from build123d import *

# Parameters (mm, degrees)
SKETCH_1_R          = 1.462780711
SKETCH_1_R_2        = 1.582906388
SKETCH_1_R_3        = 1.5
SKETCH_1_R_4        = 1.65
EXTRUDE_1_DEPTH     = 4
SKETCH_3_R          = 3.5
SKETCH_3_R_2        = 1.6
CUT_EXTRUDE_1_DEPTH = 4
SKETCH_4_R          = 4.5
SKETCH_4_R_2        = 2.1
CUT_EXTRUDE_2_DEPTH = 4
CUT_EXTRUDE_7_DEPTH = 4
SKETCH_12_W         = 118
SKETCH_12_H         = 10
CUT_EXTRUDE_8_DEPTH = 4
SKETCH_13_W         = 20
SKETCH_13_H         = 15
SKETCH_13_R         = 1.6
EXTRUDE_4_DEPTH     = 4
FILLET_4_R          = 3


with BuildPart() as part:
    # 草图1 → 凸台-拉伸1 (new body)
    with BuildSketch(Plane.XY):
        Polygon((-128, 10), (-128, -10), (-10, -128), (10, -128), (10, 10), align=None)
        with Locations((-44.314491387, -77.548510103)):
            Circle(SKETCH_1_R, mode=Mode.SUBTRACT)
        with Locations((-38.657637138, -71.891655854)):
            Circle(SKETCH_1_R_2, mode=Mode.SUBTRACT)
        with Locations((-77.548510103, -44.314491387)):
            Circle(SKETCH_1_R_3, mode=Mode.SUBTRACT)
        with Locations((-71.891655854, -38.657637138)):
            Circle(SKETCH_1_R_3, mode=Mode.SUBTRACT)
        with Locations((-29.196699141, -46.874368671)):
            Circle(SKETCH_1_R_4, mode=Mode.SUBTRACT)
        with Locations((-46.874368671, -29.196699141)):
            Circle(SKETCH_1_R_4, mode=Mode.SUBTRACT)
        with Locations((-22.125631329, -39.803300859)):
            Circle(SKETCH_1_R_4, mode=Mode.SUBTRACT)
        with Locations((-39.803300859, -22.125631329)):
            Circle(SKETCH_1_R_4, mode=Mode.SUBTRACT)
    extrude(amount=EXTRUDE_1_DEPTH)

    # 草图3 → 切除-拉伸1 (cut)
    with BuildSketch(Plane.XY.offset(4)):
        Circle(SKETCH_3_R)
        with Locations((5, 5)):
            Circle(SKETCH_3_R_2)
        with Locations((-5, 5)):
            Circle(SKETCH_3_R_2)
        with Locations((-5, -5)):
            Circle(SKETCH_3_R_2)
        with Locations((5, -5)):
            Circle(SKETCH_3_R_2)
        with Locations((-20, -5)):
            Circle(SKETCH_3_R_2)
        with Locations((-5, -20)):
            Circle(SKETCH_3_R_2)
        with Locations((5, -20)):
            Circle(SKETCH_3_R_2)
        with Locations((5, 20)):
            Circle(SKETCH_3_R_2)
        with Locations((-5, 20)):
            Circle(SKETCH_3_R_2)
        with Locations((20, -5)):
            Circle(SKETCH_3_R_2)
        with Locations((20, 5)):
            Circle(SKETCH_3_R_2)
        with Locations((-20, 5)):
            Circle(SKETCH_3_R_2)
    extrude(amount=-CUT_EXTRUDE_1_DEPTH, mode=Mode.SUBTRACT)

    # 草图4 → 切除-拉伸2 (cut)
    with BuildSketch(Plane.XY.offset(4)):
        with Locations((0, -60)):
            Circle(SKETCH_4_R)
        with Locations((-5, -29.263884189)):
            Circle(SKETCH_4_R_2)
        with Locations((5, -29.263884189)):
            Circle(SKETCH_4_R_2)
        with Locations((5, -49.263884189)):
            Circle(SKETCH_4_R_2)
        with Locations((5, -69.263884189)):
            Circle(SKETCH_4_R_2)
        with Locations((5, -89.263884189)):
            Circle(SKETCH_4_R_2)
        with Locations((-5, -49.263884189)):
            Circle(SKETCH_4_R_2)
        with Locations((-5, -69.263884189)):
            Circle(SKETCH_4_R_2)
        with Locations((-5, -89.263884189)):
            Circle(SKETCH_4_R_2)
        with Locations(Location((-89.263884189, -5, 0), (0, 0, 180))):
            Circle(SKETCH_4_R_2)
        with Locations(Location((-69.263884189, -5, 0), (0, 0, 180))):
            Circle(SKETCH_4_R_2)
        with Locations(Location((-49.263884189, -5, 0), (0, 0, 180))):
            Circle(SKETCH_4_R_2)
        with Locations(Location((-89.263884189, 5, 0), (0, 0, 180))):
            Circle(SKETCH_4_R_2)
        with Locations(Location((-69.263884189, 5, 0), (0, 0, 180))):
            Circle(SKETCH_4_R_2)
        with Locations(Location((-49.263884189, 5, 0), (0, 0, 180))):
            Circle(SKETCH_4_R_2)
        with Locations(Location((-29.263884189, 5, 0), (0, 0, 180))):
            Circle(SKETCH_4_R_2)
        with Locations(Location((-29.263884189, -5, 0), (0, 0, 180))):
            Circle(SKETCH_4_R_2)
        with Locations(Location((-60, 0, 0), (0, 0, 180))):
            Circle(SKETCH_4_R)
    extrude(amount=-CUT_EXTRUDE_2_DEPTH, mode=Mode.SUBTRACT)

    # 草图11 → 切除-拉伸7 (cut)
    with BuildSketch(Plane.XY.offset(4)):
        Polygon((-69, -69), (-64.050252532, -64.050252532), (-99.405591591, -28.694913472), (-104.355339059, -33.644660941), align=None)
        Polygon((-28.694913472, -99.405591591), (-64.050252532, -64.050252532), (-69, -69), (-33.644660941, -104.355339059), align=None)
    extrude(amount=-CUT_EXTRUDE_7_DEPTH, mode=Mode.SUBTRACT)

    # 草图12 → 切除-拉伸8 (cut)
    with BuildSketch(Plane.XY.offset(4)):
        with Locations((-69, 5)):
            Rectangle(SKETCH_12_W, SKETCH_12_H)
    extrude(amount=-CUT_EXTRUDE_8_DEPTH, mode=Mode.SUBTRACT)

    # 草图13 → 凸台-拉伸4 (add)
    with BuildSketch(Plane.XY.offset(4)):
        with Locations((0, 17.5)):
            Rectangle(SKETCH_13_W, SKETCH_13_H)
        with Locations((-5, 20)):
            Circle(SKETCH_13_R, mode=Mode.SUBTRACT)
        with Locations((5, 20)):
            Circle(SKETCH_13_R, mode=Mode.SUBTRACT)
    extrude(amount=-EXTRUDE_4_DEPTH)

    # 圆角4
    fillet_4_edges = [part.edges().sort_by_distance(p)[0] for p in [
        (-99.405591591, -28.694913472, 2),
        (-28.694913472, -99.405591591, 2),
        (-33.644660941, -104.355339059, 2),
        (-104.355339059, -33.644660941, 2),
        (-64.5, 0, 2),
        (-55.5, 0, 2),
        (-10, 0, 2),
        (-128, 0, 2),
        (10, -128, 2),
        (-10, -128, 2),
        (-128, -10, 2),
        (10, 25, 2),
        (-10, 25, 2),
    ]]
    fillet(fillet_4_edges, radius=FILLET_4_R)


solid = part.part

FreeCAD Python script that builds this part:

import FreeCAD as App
import Part
import Sketcher

V = App.Vector
Q = App.Units.Quantity


def edges_at(feature, points):
    """Names of the edges that pass closest to the given points."""
    edges = feature.Shape.Edges
    near = lambda p: min(range(len(edges)), key=lambda i: edges[i].distToShape(Part.Vertex(*p))[0])
    return sorted({f"Edge{near(p) + 1}" for p in points})

doc = App.newDocument("Part")
body = doc.addObject("PartDesign::Body", "Body")

sketch1 = body.newObject("Sketcher::SketchObject", "Sketch")
sketch1.AttachmentSupport = (doc.getObject("XY_Plane"), [""])
sketch1.MapMode = "FlatFace"
sketch1.addGeometry(Part.LineSegment(V(-128, 10, 0), V(-128, -10, 0)), False)
sketch1.addGeometry(Part.LineSegment(V(-128, -10, 0), V(-10, -128, 0)), False)
sketch1.addGeometry(Part.LineSegment(V(-10, -128, 0), V(10, -128, 0)), False)
sketch1.addGeometry(Part.LineSegment(V(10, -128, 0), V(10, 10, 0)), False)
sketch1.addGeometry(Part.LineSegment(V(10, 10, 0), V(-128, 10, 0)), False)
sketch1.addGeometry(Part.Circle(V(-44.3, -77.5, 0), V(0, 0, 1), 1.5), False)
sketch1.addGeometry(Part.Circle(V(-38.7, -71.9, 0), V(0, 0, 1), 1.6), False)
sketch1.addGeometry(Part.Circle(V(-77.5, -44.3, 0), V(0, 0, 1), 1.5), False)
sketch1.addGeometry(Part.Circle(V(-71.9, -38.7, 0), V(0, 0, 1), 1.5), False)
sketch1.addGeometry(Part.Circle(V(-29.2, -46.9, 0), V(0, 0, 1), 1.6), False)
sketch1.addGeometry(Part.Circle(V(-22.1, -39.8, 0), V(0, 0, 1), 1.6), False)
sketch1.addGeometry(Part.Circle(V(-46.9, -29.2, 0), V(0, 0, 1), 1.6), False)
sketch1.addGeometry(Part.Circle(V(-39.8, -22.1, 0), V(0, 0, 1), 1.6), False)
sketch1.addConstraint(Sketcher.Constraint("Coincident", 0, 2, 1, 1))
sketch1.addConstraint(Sketcher.Constraint("Coincident", 1, 2, 2, 1))
sketch1.addConstraint(Sketcher.Constraint("Coincident", 2, 2, 3, 1))
sketch1.addConstraint(Sketcher.Constraint("Coincident", 3, 2, 4, 1))
sketch1.addConstraint(Sketcher.Constraint("Coincident", 4, 2, 0, 1))
sketch1.addConstraint(Sketcher.Constraint("Vertical", 0))
sketch1.addConstraint(Sketcher.Constraint("Horizontal", 2))
sketch1.addConstraint(Sketcher.Constraint("Vertical", 3))
sketch1.addConstraint(Sketcher.Constraint("Horizontal", 4))
sketch1.addConstraint(Sketcher.Constraint("Equal", 7, 8))
sketch1.addConstraint(Sketcher.Constraint("Equal", 9, 10))
sketch1.addConstraint(Sketcher.Constraint("Equal", 10, 11))
sketch1.addConstraint(Sketcher.Constraint("Equal", 11, 12))
sketch1.addConstraint(Sketcher.Constraint("Equal", 2, 0))
sketch1.addConstraint(Sketcher.Constraint("Equal", 4, 3))
sketch1.addConstraint(Sketcher.Constraint("Diameter", 7, 3.0))
sketch1.addConstraint(Sketcher.Constraint("Diameter", 9, 3.3))
sketch1.addConstraint(Sketcher.Constraint("DistanceX", 2, 1, 2, 2, 20.0))
sketch1.addConstraint(Sketcher.Constraint("DistanceX", 4, 2, 4, 1, 138.0))
sketch1.addConstraint(Sketcher.Constraint("DistanceX", 0, 2, -1, 1, 128.0))
sketch1.addConstraint(Sketcher.Constraint("DistanceY", 0, 2, -1, 1, 10.0))
sketch1.addConstraint(Sketcher.Constraint("Diameter", 5, 2.925561))
sketch1.addConstraint(Sketcher.Constraint("Diameter", 6, 3.165813))
sketch1.addConstraint(Sketcher.Constraint("DistanceX", 9, 3, -1, 1, 29.196699))
sketch1.addConstraint(Sketcher.Constraint("DistanceY", 10, 3, -1, 1, 39.803301))
sketch1.addConstraint(Sketcher.Constraint("DistanceY", 11, 3, -1, 1, 29.196699))
sketch1.addConstraint(Sketcher.Constraint("DistanceX", 12, 3, -1, 1, 39.803301))
sketch1.addConstraint(Sketcher.Constraint("DistanceX", 5, 3, -1, 1, 44.314491))
sketch1.addConstraint(Sketcher.Constraint("DistanceY", 5, 3, -1, 1, 77.54851))
sketch1.addConstraint(Sketcher.Constraint("DistanceX", 7, 3, -1, 1, 77.54851))
sketch1.addConstraint(Sketcher.Constraint("DistanceY", 7, 3, -1, 1, 44.314491))
sketch1.addConstraint(Sketcher.Constraint("DistanceY", 9, 3, -1, 1, 46.874369))
sketch1.addConstraint(Sketcher.Constraint("DistanceX", 10, 3, -1, 1, 22.125631))
sketch1.addConstraint(Sketcher.Constraint("DistanceX", 11, 3, -1, 1, 46.874369))
sketch1.addConstraint(Sketcher.Constraint("DistanceY", 12, 3, -1, 1, 22.125631))
sketch1.addConstraint(Sketcher.Constraint("DistanceX", 8, 3, 6, 3, 33.234019))
sketch1.addConstraint(Sketcher.Constraint("DistanceY", 6, 3, 8, 3, 33.234019))
sketch1.addConstraint(Sketcher.Constraint("DistanceY", 9, 3, 8, 3, 8.216732))
sketch1.addConstraint(Sketcher.Constraint("DistanceX", 11, 3, 6, 3, 8.216732))
pad1 = body.newObject("PartDesign::Pad", "Pad")
pad1.Profile = sketch1
pad1.Length = 4

sketch2 = body.newObject("Sketcher::SketchObject", "Sketch001")
sketch2.AttachmentSupport = (doc.getObject("XY_Plane"), [""])
sketch2.MapMode = "FlatFace"
sketch2.AttachmentOffset = App.Placement(V(0, 0, 4), App.Rotation())
sketch2.addGeometry(Part.Circle(V(0, 0, 0), V(0, 0, 1), 3.5), False)
sketch2.addGeometry(Part.Circle(V(5, 5, 0), V(0, 0, 1), 1.6), False)
sketch2.addGeometry(Part.Circle(V(-5, 5, 0), V(0, 0, 1), 1.6), False)
sketch2.addGeometry(Part.Circle(V(-5, -5, 0), V(0, 0, 1), 1.6), False)
sketch2.addGeometry(Part.Circle(V(5, -5, 0), V(0, 0, 1), 1.6), False)
sketch2.addGeometry(Part.Circle(V(-20, -5, 0), V(0, 0, 1), 1.6), False)
sketch2.addGeometry(Part.Circle(V(-5, -20, 0), V(0, 0, 1), 1.6), False)
sketch2.addGeometry(Part.Circle(V(5, -20, 0), V(0, 0, 1), 1.6), False)
sketch2.addGeometry(Part.Circle(V(5, 20, 0), V(0, 0, 1), 1.6), False)
sketch2.addGeometry(Part.Circle(V(-5, 20, 0), V(0, 0, 1), 1.6), False)
sketch2.addGeometry(Part.Circle(V(20, -5, 0), V(0, 0, 1), 1.6), False)
sketch2.addGeometry(Part.Circle(V(20, 5, 0), V(0, 0, 1), 1.6), False)
sketch2.addGeometry(Part.Circle(V(-20, 5, 0), V(0, 0, 1), 1.6), False)
sketch2.addConstraint(Sketcher.Constraint("Coincident", 0, 3, -1, 1))
sketch2.addConstraint(Sketcher.Constraint("Equal", 1, 2))
sketch2.addConstraint(Sketcher.Constraint("Equal", 2, 3))
sketch2.addConstraint(Sketcher.Constraint("Equal", 3, 4))
sketch2.addConstraint(Sketcher.Constraint("Equal", 4, 5))
sketch2.addConstraint(Sketcher.Constraint("Equal", 5, 6))
sketch2.addConstraint(Sketcher.Constraint("Equal", 6, 7))
sketch2.addConstraint(Sketcher.Constraint("Equal", 7, 8))
sketch2.addConstraint(Sketcher.Constraint("Equal", 8, 9))
sketch2.addConstraint(Sketcher.Constraint("Equal", 9, 10))
sketch2.addConstraint(Sketcher.Constraint("Equal", 10, 11))
sketch2.addConstraint(Sketcher.Constraint("Equal", 11, 12))
sketch2.addConstraint(Sketcher.Constraint("Symmetric", 1, 3, 3, 3, -1, 1))
sketch2.addConstraint(Sketcher.Constraint("Symmetric", 2, 3, 4, 3, -1, 1))
sketch2.addConstraint(Sketcher.Constraint("Symmetric", 6, 3, 8, 3, -1, 1))
sketch2.addConstraint(Sketcher.Constraint("Symmetric", 7, 3, 9, 3, -1, 1))
sketch2.addConstraint(Sketcher.Constraint("Symmetric", 5, 3, 11, 3, -1, 1))
sketch2.addConstraint(Sketcher.Constraint("Symmetric", 10, 3, 12, 3, -1, 1))
sketch2.addConstraint(Sketcher.Constraint("Symmetric", 1, 3, 2, 3, -2))
sketch2.addConstraint(Sketcher.Constraint("Symmetric", 6, 3, 7, 3, -2))
sketch2.addConstraint(Sketcher.Constraint("Symmetric", 5, 3, 10, 3, -2))
sketch2.addConstraint(Sketcher.Constraint("Horizontal", 4, 3, 5, 3))
sketch2.addConstraint(Sketcher.Constraint("Vertical", 3, 3, 6, 3))
sketch2.addConstraint(Sketcher.Constraint("Diameter", 0, 7.0))
sketch2.addConstraint(Sketcher.Constraint("Diameter", 1, 3.2))
sketch2.addConstraint(Sketcher.Constraint("DistanceX", -1, 1, 1, 3, 5.0))
sketch2.addConstraint(Sketcher.Constraint("DistanceY", -1, 1, 1, 3, 5.0))
sketch2.addConstraint(Sketcher.Constraint("DistanceX", 5, 3, -1, 1, 20.0))
sketch2.addConstraint(Sketcher.Constraint("DistanceY", 6, 3, -1, 1, 20.0))
pocket1 = body.newObject("PartDesign::Pocket", "Pocket")
pocket1.Profile = sketch2
pocket1.Length = 4

sketch3 = body.newObject("Sketcher::SketchObject", "Sketch002")
sketch3.AttachmentSupport = (doc.getObject("XY_Plane"), [""])
sketch3.MapMode = "FlatFace"
sketch3.AttachmentOffset = App.Placement(V(0, 0, 4), App.Rotation())
sketch3.addGeometry(Part.Circle(V(0, -60, 0), V(0, 0, 1), 4.5), False)
sketch3.addGeometry(Part.Circle(V(-5, -29.3, 0), V(0, 0, 1), 2.1), False)
sketch3.addGeometry(Part.Circle(V(5, -29.3, 0), V(0, 0, 1), 2.1), False)
sketch3.addGeometry(Part.Circle(V(5, -49.3, 0), V(0, 0, 1), 2.1), False)
sketch3.addGeometry(Part.Circle(V(5, -69.3, 0), V(0, 0, 1), 2.1), False)
sketch3.addGeometry(Part.Circle(V(5, -89.3, 0), V(0, 0, 1), 2.1), False)
sketch3.addGeometry(Part.Circle(V(-5, -49.3, 0), V(0, 0, 1), 2.1), False)
sketch3.addGeometry(Part.Circle(V(-5, -69.3, 0), V(0, 0, 1), 2.1), False)
sketch3.addGeometry(Part.Circle(V(-5, -89.3, 0), V(0, 0, 1), 2.1), False)
sketch3.addGeometry(Part.Circle(V(-89.3, -5, 0), V(0, 0, 1), 2.1), False)
sketch3.addGeometry(Part.Circle(V(-69.3, -5, 0), V(0, 0, 1), 2.1), False)
sketch3.addGeometry(Part.Circle(V(-49.3, -5, 0), V(0, 0, 1), 2.1), False)
sketch3.addGeometry(Part.Circle(V(-89.3, 5, 0), V(0, 0, 1), 2.1), False)
sketch3.addGeometry(Part.Circle(V(-69.3, 5, 0), V(0, 0, 1), 2.1), False)
sketch3.addGeometry(Part.Circle(V(-49.3, 5, 0), V(0, 0, 1), 2.1), False)
sketch3.addGeometry(Part.Circle(V(-29.3, 5, 0), V(0, 0, 1), 2.1), False)
sketch3.addGeometry(Part.Circle(V(-29.3, -5, 0), V(0, 0, 1), 2.1), False)
sketch3.addGeometry(Part.Circle(V(-60, 0, 0), V(0, 0, 1), 4.5), False)
sketch3.addConstraint(Sketcher.Constraint("Equal", 1, 2))
sketch3.addConstraint(Sketcher.Constraint("Equal", 2, 3))
sketch3.addConstraint(Sketcher.Constraint("Equal", 3, 4))
sketch3.addConstraint(Sketcher.Constraint("Equal", 4, 5))
sketch3.addConstraint(Sketcher.Constraint("Equal", 5, 6))
sketch3.addConstraint(Sketcher.Constraint("Equal", 6, 7))
sketch3.addConstraint(Sketcher.Constraint("Equal", 7, 8))
sketch3.addConstraint(Sketcher.Constraint("Equal", 8, 9))
sketch3.addConstraint(Sketcher.Constraint("Equal", 9, 10))
sketch3.addConstraint(Sketcher.Constraint("Equal", 10, 11))
sketch3.addConstraint(Sketcher.Constraint("Equal", 11, 12))
sketch3.addConstraint(Sketcher.Constraint("Equal", 12, 13))
sketch3.addConstraint(Sketcher.Constraint("Equal", 13, 14))
sketch3.addConstraint(Sketcher.Constraint("Equal", 14, 15))
sketch3.addConstraint(Sketcher.Constraint("Equal", 15, 16))
sketch3.addConstraint(Sketcher.Constraint("Equal", 0, 17))
sketch3.addConstraint(Sketcher.Constraint("Symmetric", 1, 3, 2, 3, -2))
sketch3.addConstraint(Sketcher.Constraint("Symmetric", 3, 3, 6, 3, -2))
sketch3.addConstraint(Sketcher.Constraint("Symmetric", 4, 3, 7, 3, -2))
sketch3.addConstraint(Sketcher.Constraint("Symmetric", 5, 3, 8, 3, -2))
sketch3.addConstraint(Sketcher.Constraint("Symmetric", 9, 3, 12, 3, -1))
sketch3.addConstraint(Sketcher.Constraint("Symmetric", 10, 3, 13, 3, -1))
sketch3.addConstraint(Sketcher.Constraint("Symmetric", 11, 3, 14, 3, -1))
sketch3.addConstraint(Sketcher.Constraint("Symmetric", 15, 3, 16, 3, -1))
sketch3.addConstraint(Sketcher.Constraint("PointOnObject", 0, 3, -2))
sketch3.addConstraint(Sketcher.Constraint("PointOnObject", 17, 3, -1))
sketch3.addConstraint(Sketcher.Constraint("Horizontal", 9, 3, 10, 3))
sketch3.addConstraint(Sketcher.Constraint("Horizontal", 10, 3, 11, 3))
sketch3.addConstraint(Sketcher.Constraint("Horizontal", 14, 3, 15, 3))
sketch3.addConstraint(Sketcher.Constraint("Vertical", 2, 3, 3, 3))
sketch3.addConstraint(Sketcher.Constraint("Vertical", 3, 3, 4, 3))
sketch3.addConstraint(Sketcher.Constraint("Vertical", 4, 3, 5, 3))
sketch3.addConstraint(Sketcher.Constraint("Diameter", 0, 9.0))
sketch3.addConstraint(Sketcher.Constraint("Diameter", 1, 4.2))
sketch3.addConstraint(Sketcher.Constraint("DistanceY", 0, 3, -1, 1, 60.0))
sketch3.addConstraint(Sketcher.Constraint("DistanceX", 1, 3, -1, 1, 5.0))
sketch3.addConstraint(Sketcher.Constraint("DistanceY", 9, 3, -1, 1, 5.0))
sketch3.addConstraint(Sketcher.Constraint("DistanceX", 17, 3, -1, 1, 60.0))
sketch3.addConstraint(Sketcher.Constraint("DistanceY", 3, 3, 2, 3, 20.0))
sketch3.addConstraint(Sketcher.Constraint("DistanceY", 4, 3, 3, 3, 20.0))
sketch3.addConstraint(Sketcher.Constraint("DistanceY", 5, 3, 4, 3, 20.0))
sketch3.addConstraint(Sketcher.Constraint("DistanceX", 9, 3, 10, 3, 20.0))
sketch3.addConstraint(Sketcher.Constraint("DistanceX", 10, 3, 11, 3, 20.0))
sketch3.addConstraint(Sketcher.Constraint("DistanceX", 14, 3, 15, 3, 20.0))
sketch3.addConstraint(Sketcher.Constraint("DistanceY", 1, 3, -1, 1, 29.263884))
sketch3.addConstraint(Sketcher.Constraint("DistanceX", 9, 3, -1, 1, 89.263884))
pocket2 = body.newObject("PartDesign::Pocket", "Pocket001")
pocket2.Profile = sketch3
pocket2.Length = 4

sketch4 = body.newObject("Sketcher::SketchObject", "Sketch003")
sketch4.AttachmentSupport = (doc.getObject("XY_Plane"), [""])
sketch4.MapMode = "FlatFace"
sketch4.AttachmentOffset = App.Placement(V(0, 0, 4), App.Rotation())
sketch4.addGeometry(Part.LineSegment(V(-64, -64, 0), V(-99, -29, 0)), False)
sketch4.addGeometry(Part.LineSegment(V(-99, -29, 0), V(-104, -34, 0)), False)
sketch4.addGeometry(Part.LineSegment(V(-104, -34, 0), V(-34, -104, 0)), False)
sketch4.addGeometry(Part.LineSegment(V(-34, -104, 0), V(-29, -99, 0)), False)
sketch4.addGeometry(Part.LineSegment(V(-29, -99, 0), V(-64, -64, 0)), False)
sketch4.addConstraint(Sketcher.Constraint("Coincident", 0, 2, 1, 1))
sketch4.addConstraint(Sketcher.Constraint("Coincident", 1, 2, 2, 1))
sketch4.addConstraint(Sketcher.Constraint("Coincident", 2, 2, 3, 1))
sketch4.addConstraint(Sketcher.Constraint("Coincident", 3, 2, 4, 1))
sketch4.addConstraint(Sketcher.Constraint("Coincident", 4, 2, 0, 1))
sketch4.addConstraint(Sketcher.Constraint("Perpendicular", 0, 1))
sketch4.addConstraint(Sketcher.Constraint("Perpendicular", 1, 2))
sketch4.addConstraint(Sketcher.Constraint("Perpendicular", 2, 3))
sketch4.addConstraint(Sketcher.Constraint("Perpendicular", 3, 4))
sketch4.addConstraint(Sketcher.Constraint("Equal", 0, 4))
sketch4.addConstraint(Sketcher.Constraint("Angle", 0, Q("135 deg")))
sketch4.addConstraint(Sketcher.Constraint("Distance", 0, 50.0))
sketch4.addConstraint(Sketcher.Constraint("Distance", 1, 7.0))
sketch4.addConstraint(Sketcher.Constraint("DistanceX", 0, 2, -1, 1, 99.405592))
sketch4.addConstraint(Sketcher.Constraint("DistanceY", 1, 2, -1, 1, 33.644661))
pocket3 = body.newObject("PartDesign::Pocket", "Pocket002")
pocket3.Profile = sketch4
pocket3.Length = 4

sketch5 = body.newObject("Sketcher::SketchObject", "Sketch004")
sketch5.AttachmentSupport = (doc.getObject("XY_Plane"), [""])
sketch5.MapMode = "FlatFace"
sketch5.AttachmentOffset = App.Placement(V(0, 0, 4), App.Rotation())
sketch5.addGeometry(Part.LineSegment(V(-128, 10, 0), V(-128, 0, 0)), False)
sketch5.addGeometry(Part.LineSegment(V(-128, 0, 0), V(-10, 0, 0)), False)
sketch5.addGeometry(Part.LineSegment(V(-10, 0, 0), V(-10, 10, 0)), False)
sketch5.addGeometry(Part.LineSegment(V(-10, 10, 0), V(-128, 10, 0)), False)
sketch5.addConstraint(Sketcher.Constraint("Coincident", 0, 2, 1, 1))
sketch5.addConstraint(Sketcher.Constraint("Coincident", 1, 2, 2, 1))
sketch5.addConstraint(Sketcher.Constraint("Coincident", 2, 2, 3, 1))
sketch5.addConstraint(Sketcher.Constraint("Coincident", 3, 2, 0, 1))
sketch5.addConstraint(Sketcher.Constraint("Vertical", 0))
sketch5.addConstraint(Sketcher.Constraint("Horizontal", 1))
sketch5.addConstraint(Sketcher.Constraint("Vertical", 2))
sketch5.addConstraint(Sketcher.Constraint("Horizontal", 3))
sketch5.addConstraint(Sketcher.Constraint("PointOnObject", 0, 2, -1))
sketch5.addConstraint(Sketcher.Constraint("DistanceX", 1, 1, 1, 2, 118.0))
sketch5.addConstraint(Sketcher.Constraint("DistanceY", 0, 2, 0, 1, 10.0))
sketch5.addConstraint(Sketcher.Constraint("DistanceX", 0, 2, -1, 1, 128.0))
pocket4 = body.newObject("PartDesign::Pocket", "Pocket003")
pocket4.Profile = sketch5
pocket4.Length = 4

sketch6 = body.newObject("Sketcher::SketchObject", "Sketch005")
sketch6.AttachmentSupport = (doc.getObject("XY_Plane"), [""])
sketch6.MapMode = "FlatFace"
sketch6.AttachmentOffset = App.Placement(V(0, 0, 4), App.Rotation())
sketch6.addGeometry(Part.LineSegment(V(-10, 25, 0), V(-10, 10, 0)), False)
sketch6.addGeometry(Part.LineSegment(V(-10, 10, 0), V(10, 10, 0)), False)
sketch6.addGeometry(Part.LineSegment(V(10, 10, 0), V(10, 25, 0)), False)
sketch6.addGeometry(Part.LineSegment(V(10, 25, 0), V(-10, 25, 0)), False)
sketch6.addGeometry(Part.Circle(V(-5, 20, 0), V(0, 0, 1), 1.6), False)
sketch6.addGeometry(Part.Circle(V(5, 20, 0), V(0, 0, 1), 1.6), False)
sketch6.addConstraint(Sketcher.Constraint("Coincident", 0, 2, 1, 1))
sketch6.addConstraint(Sketcher.Constraint("Coincident", 1, 2, 2, 1))
sketch6.addConstraint(Sketcher.Constraint("Coincident", 2, 2, 3, 1))
sketch6.addConstraint(Sketcher.Constraint("Coincident", 3, 2, 0, 1))
sketch6.addConstraint(Sketcher.Constraint("Vertical", 0))
sketch6.addConstraint(Sketcher.Constraint("Horizontal", 1))
sketch6.addConstraint(Sketcher.Constraint("Vertical", 2))
sketch6.addConstraint(Sketcher.Constraint("Horizontal", 3))
sketch6.addConstraint(Sketcher.Constraint("Equal", 4, 5))
sketch6.addConstraint(Sketcher.Constraint("Symmetric", 4, 3, 5, 3, -2))
sketch6.addConstraint(Sketcher.Constraint("Diameter", 4, 3.2))
sketch6.addConstraint(Sketcher.Constraint("DistanceX", 1, 1, 1, 2, 20.0))
sketch6.addConstraint(Sketcher.Constraint("DistanceY", 0, 2, 0, 1, 15.0))
sketch6.addConstraint(Sketcher.Constraint("DistanceX", 4, 3, -1, 1, 5.0))
sketch6.addConstraint(Sketcher.Constraint("DistanceY", -1, 1, 4, 3, 20.0))
sketch6.addConstraint(Sketcher.Constraint("DistanceX", 0, 2, -1, 1, 10.0))
sketch6.addConstraint(Sketcher.Constraint("DistanceY", -1, 1, 0, 2, 10.0))
pad2 = body.newObject("PartDesign::Pad", "Pad001")
pad2.Profile = sketch6
pad2.Length = 4
pad2.Reversed = True
doc.recompute()

fillet = body.newObject("PartDesign::Fillet", "Fillet")
fillet.Base = (pad2, edges_at(pad2, [
    (-99.406, -28.695, 2),
    (-28.695, -99.406, 2),
    (-33.645, -104.355, 2),
    (-104.355, -33.645, 2),
    (-64.5, 0, 2),
    (-55.5, 0, 2),
    (-10, 0, 2),
    (-128, 0, 2),
    (10, -128, 2),
    (-10, -128, 2),
    (-128, -10, 2),
    (10, 25, 2),
    (-10, 25, 2),
]))
fillet.Radius = 3

doc.recompute()
